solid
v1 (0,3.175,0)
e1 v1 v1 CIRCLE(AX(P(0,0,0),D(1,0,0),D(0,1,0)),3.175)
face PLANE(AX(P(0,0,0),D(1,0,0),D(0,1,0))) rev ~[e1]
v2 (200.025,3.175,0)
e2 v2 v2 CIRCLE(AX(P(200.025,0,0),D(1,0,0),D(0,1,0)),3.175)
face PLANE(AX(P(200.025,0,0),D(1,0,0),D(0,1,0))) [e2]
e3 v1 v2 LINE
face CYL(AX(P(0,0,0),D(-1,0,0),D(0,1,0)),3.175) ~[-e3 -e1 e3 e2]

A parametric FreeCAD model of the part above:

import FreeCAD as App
import Part
import Sketcher

V = App.Vector
Q = App.Units.Quantity

doc = App.newDocument("Part")
body = doc.addObject("PartDesign::Body", "Body")

# Sketch on YZ plane
sketch1 = body.newObject("Sketcher::SketchObject", "Sketch")
sketch1.AttachmentSupport = (doc.getObject("YZ_Plane"), [""])
sketch1.MapMode = "FlatFace"
sketch1.addGeometry(Part.Circle(V(0, 0, 0), V(0, 0, 1), 3.2), False)
sketch1.addConstraint(Sketcher.Constraint("Coincident", 0, 3, -1, 1))
sketch1.addConstraint(Sketcher.Constraint("Diameter", 0, Q("0.25 in")))
pad1 = body.newObject("PartDesign::Pad", "Pad")
pad1.Profile = sketch1
pad1.Length = Q("7.875 in")

doc.recompute()
